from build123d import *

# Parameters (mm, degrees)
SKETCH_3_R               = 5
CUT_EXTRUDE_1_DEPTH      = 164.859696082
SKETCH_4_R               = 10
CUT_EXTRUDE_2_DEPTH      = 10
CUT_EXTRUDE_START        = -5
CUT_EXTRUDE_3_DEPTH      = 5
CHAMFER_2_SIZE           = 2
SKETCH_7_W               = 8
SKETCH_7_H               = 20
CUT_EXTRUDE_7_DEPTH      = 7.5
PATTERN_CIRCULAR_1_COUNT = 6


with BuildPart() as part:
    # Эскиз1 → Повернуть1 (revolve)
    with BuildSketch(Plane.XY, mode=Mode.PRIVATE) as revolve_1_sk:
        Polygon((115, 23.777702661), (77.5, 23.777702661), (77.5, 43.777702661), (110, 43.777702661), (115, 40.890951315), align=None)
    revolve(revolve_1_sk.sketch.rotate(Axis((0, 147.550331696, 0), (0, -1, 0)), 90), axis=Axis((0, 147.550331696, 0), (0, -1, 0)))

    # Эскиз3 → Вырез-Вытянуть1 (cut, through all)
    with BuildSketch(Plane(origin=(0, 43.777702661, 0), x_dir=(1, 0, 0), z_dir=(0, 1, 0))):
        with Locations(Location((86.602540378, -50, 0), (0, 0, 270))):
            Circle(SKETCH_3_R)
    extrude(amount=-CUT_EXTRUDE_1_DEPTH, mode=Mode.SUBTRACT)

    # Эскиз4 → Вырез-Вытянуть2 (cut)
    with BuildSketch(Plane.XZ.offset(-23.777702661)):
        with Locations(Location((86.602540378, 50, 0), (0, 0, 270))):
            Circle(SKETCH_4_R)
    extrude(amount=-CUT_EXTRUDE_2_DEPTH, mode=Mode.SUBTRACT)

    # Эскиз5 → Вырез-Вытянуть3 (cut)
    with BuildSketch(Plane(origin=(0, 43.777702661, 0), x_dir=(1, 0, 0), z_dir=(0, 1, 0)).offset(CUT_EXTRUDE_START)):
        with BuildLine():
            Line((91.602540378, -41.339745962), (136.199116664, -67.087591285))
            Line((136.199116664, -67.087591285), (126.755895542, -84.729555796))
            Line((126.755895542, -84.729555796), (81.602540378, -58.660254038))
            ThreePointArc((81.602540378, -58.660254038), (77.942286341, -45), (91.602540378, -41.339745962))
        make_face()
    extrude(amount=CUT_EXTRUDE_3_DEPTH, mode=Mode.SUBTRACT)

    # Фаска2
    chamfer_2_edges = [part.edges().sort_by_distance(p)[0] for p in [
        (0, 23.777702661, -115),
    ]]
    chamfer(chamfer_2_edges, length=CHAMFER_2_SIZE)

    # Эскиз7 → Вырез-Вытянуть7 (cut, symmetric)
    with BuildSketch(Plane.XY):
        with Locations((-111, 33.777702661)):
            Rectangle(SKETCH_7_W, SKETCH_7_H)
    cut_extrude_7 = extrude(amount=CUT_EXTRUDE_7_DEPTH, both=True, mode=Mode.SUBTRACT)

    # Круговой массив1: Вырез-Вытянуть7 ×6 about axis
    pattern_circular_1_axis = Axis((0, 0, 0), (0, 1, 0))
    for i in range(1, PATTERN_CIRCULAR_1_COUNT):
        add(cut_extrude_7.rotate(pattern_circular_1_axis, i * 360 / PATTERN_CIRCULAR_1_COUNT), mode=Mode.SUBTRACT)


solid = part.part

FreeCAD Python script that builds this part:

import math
import FreeCAD as App
import Part
import Sketcher
Q = App.Units.Quantity


def edges_at(feature, points):
    """Names of the edges that pass closest to the given points."""
    edges = feature.Shape.Edges
    near = lambda p: min(range(len(edges)), key=lambda i: edges[i].distToShape(Part.Vertex(*p))[0])
    return sorted({f"Edge{near(p) + 1}" for p in points})


def add_polygon(sketch, points):
    """Adds a closed chain of lines whose ends are joined by coincident constraints."""
    first, n = sketch.GeometryCount, len(points)
    for a, b in zip(points, points[1:] + points[:1]):
        sketch.addGeometry(Part.LineSegment(App.Vector(*a, 0), App.Vector(*b, 0)), False)
    for i in range(n):
        sketch.addConstraint(Sketcher.Constraint("Coincident", first + i, 2, first + (i + 1) % n, 1))

doc = App.newDocument("Part")
params = doc.addObject("Spreadsheet::Sheet", "Params")
for row, (alias, value) in enumerate([
    ("sketch1_height", "20 mm"),
    ("sketch1_width", "37.5 mm"),
    ("sketch1_width2", "32.5 mm"),
    ("revolution_angle", "360 deg"),
    ("sketch2_diameter", "10 mm"),
    ("sketch3_diameter", "20 mm"),
    ("pocket2_length", "10 mm"),
    ("sketch4_radius", "10 mm"),
    ("pocket3_length", "5 mm"),
    ("chamfer_size", "2 mm"),
    ("sketch5_width", "8 mm"),
    ("sketch5_height", "20 mm"),
    ("pocket4_length", "15 mm"),
], start=1):
    params.set(f"A{row}", alias)
    params.set(f"B{row}", "=" + value)
    params.setAlias(f"B{row}", alias)

body = doc.addObject("PartDesign::Body", "Body")

sketch1 = body.newObject("Sketcher::SketchObject", "Sketch")
sketch1.AttachmentSupport = (doc.getObject("XY_Plane"), [""])
sketch1.MapMode = "FlatFace"
add_polygon(sketch1, [(77.5, 23.777703), (115, 23.777703), (115, 40.890951), (110, 43.777703), (77.5, 43.777703)])
sketch1.addConstraint([
    Sketcher.Constraint("Horizontal", 0),
    Sketcher.Constraint("Vertical", 1),
    Sketcher.Constraint("Horizontal", 3),
    Sketcher.Constraint("Vertical", 4),
    Sketcher.Constraint("DistanceY", 4, 2, 4, 1, Q("20 mm")),
    Sketcher.Constraint("Angle", 2, Q("150 deg")),
    Sketcher.Constraint("DistanceX", 0, 1, 0, 2, Q("37.5 mm")),
    Sketcher.Constraint("DistanceX", 3, 2, 3, 1, Q("32.5 mm")),
    Sketcher.Constraint("DistanceX", -1, 1, 0, 2, Q("115 mm")),
    Sketcher.Constraint("DistanceY", -1, 1, 1, 2, Q("40.890951 mm")),
])
sketch1.setExpression("Constraints[9]", "Params.sketch1_height")
sketch1.setExpression("Constraints[11]", "Params.sketch1_width")
sketch1.setExpression("Constraints[12]", "Params.sketch1_width2")
revolution = body.newObject("PartDesign::Revolution", "Revolution")
revolution.Profile = sketch1
revolution.ReferenceAxis = (sketch1, ["V_Axis"])
revolution.setExpression("Angle", "Params.revolution_angle")

sketch2 = body.newObject("Sketcher::SketchObject", "Sketch001")
sketch2.AttachmentSupport = (doc.getObject("XZ_Plane"), [""])
sketch2.MapMode = "FlatFace"
sketch2.AttachmentOffset = App.Placement(App.Vector(0, 0, -43.777703), App.Rotation())
sketch2.addGeometry(Part.Circle(App.Vector(86.60254, 50, 0), App.Vector(0, 0, 1), 5), False)
sketch2.addConstraint([
    Sketcher.Constraint("Diameter", 0, Q("10 mm")),
    Sketcher.Constraint("DistanceY", -1, 1, 0, 3, Q("50 mm")),
    Sketcher.Constraint("DistanceX", -1, 1, 0, 3, Q("86.60254 mm")),
])
sketch2.setExpression("Constraints[0]", "Params.sketch2_diameter")
pocket1 = body.newObject("PartDesign::Pocket", "Pocket")
pocket1.Profile = sketch2
pocket1.Type = "ThroughAll"
pocket1.Reversed = True

sketch3 = body.newObject("Sketcher::SketchObject", "Sketch002")
sketch3.AttachmentSupport = (doc.getObject("XZ_Plane"), [""])
sketch3.MapMode = "FlatFace"
sketch3.AttachmentOffset = App.Placement(App.Vector(0, 0, -23.777703), App.Rotation())
sketch3.addGeometry(Part.Circle(App.Vector(86.60254, 50, 0), App.Vector(0, 0, 1), 10), False)
sketch3.addConstraint([
    Sketcher.Constraint("Diameter", 0, Q("20 mm")),
    Sketcher.Constraint("DistanceY", -1, 1, 0, 3, Q("50 mm")),
    Sketcher.Constraint("DistanceX", -1, 1, 0, 3, Q("86.60254 mm")),
])
sketch3.setExpression("Constraints[0]", "Params.sketch3_diameter")
pocket2 = body.newObject("PartDesign::Pocket", "Pocket001")
pocket2.Profile = sketch3
pocket2.setExpression("Length", "Params.pocket2_length")

sketch4 = body.newObject("Sketcher::SketchObject", "Sketch003")
sketch4.AttachmentSupport = (doc.getObject("XZ_Plane"), [""])
sketch4.MapMode = "FlatFace"
sketch4.AttachmentOffset = App.Placement(App.Vector(0, 0, -38.777703), App.Rotation())
sketch4.addGeometry([
    Part.LineSegment(App.Vector(136.199117, 67.087591, 0), App.Vector(91.60254, 41.339746, 0)),
    Part.ArcOfCircle(Part.Circle(App.Vector(86.60254, 50, 0), App.Vector(0, 0, 1), 10), math.radians(120), math.radians(300)),
    Part.LineSegment(App.Vector(81.60254, 58.660254, 0), App.Vector(126.755896, 84.729556, 0)),
    Part.LineSegment(App.Vector(126.755896, 84.729556, 0), App.Vector(136.199117, 67.087591, 0)),
], False)
sketch4.addConstraint([
    Sketcher.Constraint("Tangent", 0, 2, 1, 2),
    Sketcher.Constraint("Tangent", 1, 1, 2, 1),
    Sketcher.Constraint("Coincident", 2, 2, 3, 1),
    Sketcher.Constraint("Coincident", 3, 2, 0, 1),
    Sketcher.Constraint("Parallel", 0, 2),
    Sketcher.Constraint("Radius", 1, Q("10 mm")),
    Sketcher.Constraint("Angle", 0, Q("-150 deg")),
    Sketcher.Constraint("DistanceY", -1, 1, 1, 3, Q("50 mm")),
    Sketcher.Constraint("DistanceY", 1, 1, 2, 2, Q("26.069302 mm")),
    Sketcher.Constraint("Distance", 0, Q("51.495691 mm")),
    Sketcher.Constraint("DistanceX", -1, 1, 1, 3, Q("86.60254 mm")),
])
sketch4.setExpression("Constraints[5]", "Params.sketch4_radius")
pocket3 = body.newObject("PartDesign::Pocket", "Pocket002")
pocket3.Profile = sketch4
pocket3.setExpression("Length", "Params.pocket3_length")
doc.recompute()

chamfer = body.newObject("PartDesign::Chamfer", "Chamfer")
chamfer.Base = (pocket3, edges_at(pocket3, [(0, 23.778, -115)]))
chamfer.setExpression("Size", "Params.chamfer_size")

sketch5 = body.newObject("Sketcher::SketchObject", "Sketch004")
sketch5.AttachmentSupport = (doc.getObject("XY_Plane"), [""])
sketch5.MapMode = "FlatFace"
add_polygon(sketch5, [(-115, 43.777703), (-115, 23.777703), (-107, 23.777703), (-107, 43.777703)])
sketch5.addConstraint([
    Sketcher.Constraint("Vertical", 0),
    Sketcher.Constraint("Horizontal", 1),
    Sketcher.Constraint("Vertical", 2),
    Sketcher.Constraint("Horizontal", 3),
    Sketcher.Constraint("DistanceX", 1, 1, 1, 2, Q("8 mm")),
    Sketcher.Constraint("DistanceY", 0, 2, 0, 1, Q("20 mm")),
    Sketcher.Constraint("DistanceX", 0, 2, -1, 1, Q("115 mm")),
    Sketcher.Constraint("DistanceY", -1, 1, 0, 2, Q("23.777703 mm")),
])
sketch5.setExpression("Constraints[8]", "Params.sketch5_width")
sketch5.setExpression("Constraints[9]", "Params.sketch5_height")
pocket4 = body.newObject("PartDesign::Pocket", "Pocket003")
pocket4.Profile = sketch5
pocket4.setExpression("Length", "Params.pocket4_length")
pocket4.Midplane = True
doc.recompute()

polarpattern = body.newObject("PartDesign::PolarPattern", "PolarPattern")
polarpattern.Originals = [pocket4]
polarpattern.Axis = (doc.getObject("Y_Axis"), [""])
polarpattern.Angle = 360
polarpattern.Occurrences = 6
body.Tip = polarpattern

doc.recompute()
